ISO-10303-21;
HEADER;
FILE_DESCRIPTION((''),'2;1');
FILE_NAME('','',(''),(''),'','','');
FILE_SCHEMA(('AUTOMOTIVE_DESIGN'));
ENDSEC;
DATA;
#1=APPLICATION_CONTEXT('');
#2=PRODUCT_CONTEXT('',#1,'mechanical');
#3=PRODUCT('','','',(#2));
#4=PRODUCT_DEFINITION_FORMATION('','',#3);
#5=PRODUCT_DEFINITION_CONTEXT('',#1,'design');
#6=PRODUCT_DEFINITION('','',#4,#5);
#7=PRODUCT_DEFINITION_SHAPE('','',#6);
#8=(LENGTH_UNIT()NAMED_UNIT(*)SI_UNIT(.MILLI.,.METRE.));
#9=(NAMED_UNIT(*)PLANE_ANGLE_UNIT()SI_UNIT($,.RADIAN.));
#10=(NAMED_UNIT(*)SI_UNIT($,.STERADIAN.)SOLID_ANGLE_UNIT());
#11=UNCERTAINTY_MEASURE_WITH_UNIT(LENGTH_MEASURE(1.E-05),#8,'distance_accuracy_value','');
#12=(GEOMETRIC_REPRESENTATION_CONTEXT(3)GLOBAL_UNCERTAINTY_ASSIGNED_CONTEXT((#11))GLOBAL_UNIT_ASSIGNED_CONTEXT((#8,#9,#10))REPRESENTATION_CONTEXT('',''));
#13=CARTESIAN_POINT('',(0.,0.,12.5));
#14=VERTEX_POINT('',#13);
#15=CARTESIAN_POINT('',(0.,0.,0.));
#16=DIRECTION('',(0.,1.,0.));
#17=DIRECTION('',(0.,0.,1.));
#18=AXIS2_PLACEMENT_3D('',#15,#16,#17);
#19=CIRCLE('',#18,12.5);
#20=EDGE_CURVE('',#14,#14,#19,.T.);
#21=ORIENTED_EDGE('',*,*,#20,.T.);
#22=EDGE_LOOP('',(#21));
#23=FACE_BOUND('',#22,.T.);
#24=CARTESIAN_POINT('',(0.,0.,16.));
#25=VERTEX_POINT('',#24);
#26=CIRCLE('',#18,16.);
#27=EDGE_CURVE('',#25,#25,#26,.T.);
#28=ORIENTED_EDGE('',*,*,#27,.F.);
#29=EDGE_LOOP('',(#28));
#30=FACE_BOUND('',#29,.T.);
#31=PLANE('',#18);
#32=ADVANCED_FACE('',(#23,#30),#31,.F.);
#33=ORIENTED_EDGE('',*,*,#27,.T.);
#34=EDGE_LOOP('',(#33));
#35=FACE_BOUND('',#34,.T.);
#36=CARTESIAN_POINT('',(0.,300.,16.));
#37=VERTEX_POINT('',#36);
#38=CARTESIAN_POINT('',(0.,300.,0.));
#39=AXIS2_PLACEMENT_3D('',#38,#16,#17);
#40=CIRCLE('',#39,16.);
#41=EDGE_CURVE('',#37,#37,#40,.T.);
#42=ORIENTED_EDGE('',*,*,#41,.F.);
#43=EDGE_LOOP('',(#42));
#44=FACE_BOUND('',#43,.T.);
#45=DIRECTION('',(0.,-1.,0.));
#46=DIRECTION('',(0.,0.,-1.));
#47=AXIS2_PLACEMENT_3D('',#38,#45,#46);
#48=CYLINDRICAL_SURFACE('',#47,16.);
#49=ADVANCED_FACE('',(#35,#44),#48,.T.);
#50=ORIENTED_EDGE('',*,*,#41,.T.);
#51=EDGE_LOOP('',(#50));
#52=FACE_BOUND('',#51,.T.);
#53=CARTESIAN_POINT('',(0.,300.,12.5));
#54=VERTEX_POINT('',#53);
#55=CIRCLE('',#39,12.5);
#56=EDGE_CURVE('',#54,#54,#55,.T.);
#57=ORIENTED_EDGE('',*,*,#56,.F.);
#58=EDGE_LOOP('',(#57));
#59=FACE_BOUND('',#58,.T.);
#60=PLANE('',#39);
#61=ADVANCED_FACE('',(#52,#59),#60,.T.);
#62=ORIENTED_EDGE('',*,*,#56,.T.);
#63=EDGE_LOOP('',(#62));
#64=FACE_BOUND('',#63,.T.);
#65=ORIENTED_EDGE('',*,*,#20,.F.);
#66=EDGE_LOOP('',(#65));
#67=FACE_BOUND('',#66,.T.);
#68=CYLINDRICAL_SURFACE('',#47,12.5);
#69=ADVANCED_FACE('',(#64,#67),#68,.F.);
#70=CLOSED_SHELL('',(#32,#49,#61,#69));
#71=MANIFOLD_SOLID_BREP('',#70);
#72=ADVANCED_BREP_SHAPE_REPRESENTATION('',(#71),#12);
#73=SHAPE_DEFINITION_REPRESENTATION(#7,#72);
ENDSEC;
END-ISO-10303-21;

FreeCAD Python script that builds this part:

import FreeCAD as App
import Part
import Sketcher

V = App.Vector
Q = App.Units.Quantity

doc = App.newDocument("Part")
body = doc.addObject("PartDesign::Body", "Body")

sketch1 = body.newObject("Sketcher::SketchObject", "Sketch")
sketch1.AttachmentSupport = (doc.getObject("XZ_Plane"), [""])
sketch1.MapMode = "FlatFace"
sketch1.addGeometry([
    Part.Circle(V(0, 0, 0), V(0, 0, 1), 16),
    Part.Circle(V(0, 0, 0), V(0, 0, 1), 12.5),
], False)
sketch1.addConstraint([
    Sketcher.Constraint("Coincident", 0, 3, -1, 1),
    Sketcher.Constraint("Coincident", 1, 3, -1, 1),
    Sketcher.Constraint("Diameter", 0, Q("32 mm")),
    Sketcher.Constraint("Diameter", 1, Q("25 mm")),
])
pad1 = body.newObject("PartDesign::Pad", "Pad")
pad1.Profile = sketch1
pad1.Length = 300
pad1.Reversed = True

doc.recompute()
